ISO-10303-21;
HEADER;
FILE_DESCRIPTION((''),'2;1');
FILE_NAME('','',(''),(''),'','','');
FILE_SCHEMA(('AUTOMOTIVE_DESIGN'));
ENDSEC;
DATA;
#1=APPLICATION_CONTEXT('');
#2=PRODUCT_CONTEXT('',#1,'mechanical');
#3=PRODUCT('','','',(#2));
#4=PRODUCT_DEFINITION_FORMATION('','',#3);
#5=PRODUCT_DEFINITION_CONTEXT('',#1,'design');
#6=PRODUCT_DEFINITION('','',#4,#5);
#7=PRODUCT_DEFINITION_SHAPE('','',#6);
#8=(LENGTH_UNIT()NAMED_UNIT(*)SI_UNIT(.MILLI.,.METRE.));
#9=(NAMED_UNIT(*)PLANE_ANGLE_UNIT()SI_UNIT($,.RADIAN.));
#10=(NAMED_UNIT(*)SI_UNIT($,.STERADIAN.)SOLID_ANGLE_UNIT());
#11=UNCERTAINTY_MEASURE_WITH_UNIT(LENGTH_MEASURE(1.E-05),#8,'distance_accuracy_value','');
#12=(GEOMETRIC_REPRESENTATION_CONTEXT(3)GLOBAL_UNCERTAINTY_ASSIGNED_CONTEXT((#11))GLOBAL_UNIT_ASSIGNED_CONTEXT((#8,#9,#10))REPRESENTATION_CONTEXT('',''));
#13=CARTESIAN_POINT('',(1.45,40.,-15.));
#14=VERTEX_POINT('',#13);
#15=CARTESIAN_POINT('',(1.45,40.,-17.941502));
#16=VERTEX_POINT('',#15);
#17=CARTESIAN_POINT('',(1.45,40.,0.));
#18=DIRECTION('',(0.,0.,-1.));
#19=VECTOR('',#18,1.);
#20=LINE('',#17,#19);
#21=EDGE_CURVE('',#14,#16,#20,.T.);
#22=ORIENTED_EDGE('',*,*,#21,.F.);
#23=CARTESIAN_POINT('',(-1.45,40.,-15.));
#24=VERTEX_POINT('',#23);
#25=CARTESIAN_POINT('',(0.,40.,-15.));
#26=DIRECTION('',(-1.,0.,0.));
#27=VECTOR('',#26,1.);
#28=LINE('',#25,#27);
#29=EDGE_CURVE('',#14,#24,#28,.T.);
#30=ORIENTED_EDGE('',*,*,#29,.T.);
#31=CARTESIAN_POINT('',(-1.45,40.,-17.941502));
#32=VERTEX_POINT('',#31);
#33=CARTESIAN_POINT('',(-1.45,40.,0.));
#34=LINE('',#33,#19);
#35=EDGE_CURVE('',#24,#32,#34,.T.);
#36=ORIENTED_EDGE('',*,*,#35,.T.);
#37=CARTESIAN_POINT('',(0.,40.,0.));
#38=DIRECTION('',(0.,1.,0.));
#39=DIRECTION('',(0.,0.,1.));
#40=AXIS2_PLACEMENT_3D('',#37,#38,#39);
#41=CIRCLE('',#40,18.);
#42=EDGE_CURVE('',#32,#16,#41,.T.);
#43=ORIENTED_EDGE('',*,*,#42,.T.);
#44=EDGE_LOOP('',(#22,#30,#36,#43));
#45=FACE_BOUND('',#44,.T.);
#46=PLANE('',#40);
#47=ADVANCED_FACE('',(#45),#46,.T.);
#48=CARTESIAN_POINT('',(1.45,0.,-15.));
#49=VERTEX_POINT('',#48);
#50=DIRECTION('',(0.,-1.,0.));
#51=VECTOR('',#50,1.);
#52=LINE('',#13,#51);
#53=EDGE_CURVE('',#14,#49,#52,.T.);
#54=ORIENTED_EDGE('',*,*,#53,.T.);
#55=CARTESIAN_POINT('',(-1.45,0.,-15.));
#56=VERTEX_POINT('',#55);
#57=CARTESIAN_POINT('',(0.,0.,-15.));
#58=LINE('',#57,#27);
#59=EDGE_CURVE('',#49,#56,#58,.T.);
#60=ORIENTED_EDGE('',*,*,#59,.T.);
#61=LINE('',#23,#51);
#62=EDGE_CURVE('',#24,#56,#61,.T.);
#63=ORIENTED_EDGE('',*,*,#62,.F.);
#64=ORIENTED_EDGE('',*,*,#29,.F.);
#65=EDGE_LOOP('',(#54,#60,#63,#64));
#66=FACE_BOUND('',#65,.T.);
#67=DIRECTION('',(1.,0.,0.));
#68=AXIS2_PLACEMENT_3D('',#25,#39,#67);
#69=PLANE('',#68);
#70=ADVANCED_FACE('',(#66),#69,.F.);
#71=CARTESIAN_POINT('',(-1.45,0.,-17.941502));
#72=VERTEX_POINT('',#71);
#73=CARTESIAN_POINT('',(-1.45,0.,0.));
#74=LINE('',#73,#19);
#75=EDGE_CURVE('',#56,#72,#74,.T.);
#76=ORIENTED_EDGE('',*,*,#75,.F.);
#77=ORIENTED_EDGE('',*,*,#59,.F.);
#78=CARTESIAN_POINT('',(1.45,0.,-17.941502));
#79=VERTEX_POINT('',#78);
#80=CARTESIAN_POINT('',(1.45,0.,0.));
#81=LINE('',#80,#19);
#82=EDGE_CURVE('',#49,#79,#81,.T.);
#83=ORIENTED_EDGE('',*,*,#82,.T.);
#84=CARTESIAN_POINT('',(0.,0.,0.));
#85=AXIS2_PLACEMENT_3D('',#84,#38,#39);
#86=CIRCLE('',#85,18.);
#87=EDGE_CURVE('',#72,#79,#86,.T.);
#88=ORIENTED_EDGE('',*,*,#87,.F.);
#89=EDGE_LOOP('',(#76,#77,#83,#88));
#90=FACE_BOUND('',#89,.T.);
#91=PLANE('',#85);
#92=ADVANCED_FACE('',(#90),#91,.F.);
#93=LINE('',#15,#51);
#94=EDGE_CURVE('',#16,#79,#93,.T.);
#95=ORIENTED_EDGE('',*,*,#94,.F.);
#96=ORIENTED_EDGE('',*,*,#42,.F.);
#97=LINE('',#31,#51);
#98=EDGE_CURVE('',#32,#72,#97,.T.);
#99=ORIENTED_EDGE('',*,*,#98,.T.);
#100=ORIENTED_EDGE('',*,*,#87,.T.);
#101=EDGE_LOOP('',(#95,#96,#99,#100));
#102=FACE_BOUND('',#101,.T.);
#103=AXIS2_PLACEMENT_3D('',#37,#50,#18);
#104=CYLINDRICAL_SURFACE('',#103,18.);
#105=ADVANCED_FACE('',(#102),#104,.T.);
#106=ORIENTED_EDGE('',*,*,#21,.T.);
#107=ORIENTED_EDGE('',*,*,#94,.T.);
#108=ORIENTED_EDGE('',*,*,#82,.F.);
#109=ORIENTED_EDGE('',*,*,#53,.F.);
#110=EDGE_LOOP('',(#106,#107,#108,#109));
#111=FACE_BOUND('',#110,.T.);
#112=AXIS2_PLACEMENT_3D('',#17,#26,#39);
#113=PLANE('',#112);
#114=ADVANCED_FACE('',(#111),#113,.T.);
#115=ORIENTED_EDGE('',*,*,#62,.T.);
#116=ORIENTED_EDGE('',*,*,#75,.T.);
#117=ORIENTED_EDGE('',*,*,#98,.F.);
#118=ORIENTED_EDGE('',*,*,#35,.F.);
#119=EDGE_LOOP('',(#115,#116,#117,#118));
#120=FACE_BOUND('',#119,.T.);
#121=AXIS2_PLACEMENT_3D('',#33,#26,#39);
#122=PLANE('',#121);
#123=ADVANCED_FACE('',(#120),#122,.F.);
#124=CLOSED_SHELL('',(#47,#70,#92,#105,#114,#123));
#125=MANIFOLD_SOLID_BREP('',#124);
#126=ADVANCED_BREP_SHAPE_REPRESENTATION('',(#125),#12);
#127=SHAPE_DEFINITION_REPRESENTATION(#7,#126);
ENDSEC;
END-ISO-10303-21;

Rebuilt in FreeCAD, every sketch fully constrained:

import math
import FreeCAD as App
import Part
import Sketcher

V = App.Vector
Q = App.Units.Quantity

doc = App.newDocument("Part")
body = doc.addObject("PartDesign::Body", "Body")

sketch1 = body.newObject("Sketcher::SketchObject", "Sketch")
sketch1.AttachmentSupport = (doc.getObject("XZ_Plane"), [""])
sketch1.MapMode = "FlatFace"
sketch1.addGeometry([
    Part.LineSegment(V(1.4, -17.9, 0), V(1.4, -15, 0)),
    Part.LineSegment(V(1.4, -15, 0), V(-1.4, -15, 0)),
    Part.LineSegment(V(-1.4, -15, 0), V(-1.4, -17.9, 0)),
    Part.ArcOfCircle(Part.Circle(V(0, 0, 0), V(0, 0, 1), 18), math.radians(0), math.radians(265)),
    Part.ArcOfCircle(Part.Circle(V(0, 0, 0), V(0, 0, 1), 18), math.radians(-85), math.radians(0)),
], False)
sketch1.addConstraint([
    Sketcher.Constraint("Coincident", 0, 2, 1, 1),
    Sketcher.Constraint("Coincident", 1, 2, 2, 1),
    Sketcher.Constraint("Coincident", 2, 2, 3, 2),
    Sketcher.Constraint("Tangent", 3, 1, 4, 2),
    Sketcher.Constraint("Coincident", 4, 1, 0, 1),
    Sketcher.Constraint("Vertical", 0),
    Sketcher.Constraint("Horizontal", 1),
    Sketcher.Constraint("Vertical", 2),
    Sketcher.Constraint("Coincident", 3, 3, -1, 1),
    Sketcher.Constraint("Equal", 3, 4),
    Sketcher.Constraint("PointOnObject", 3, 1, -1),
    Sketcher.Constraint("Horizontal", 2, 2, 4, 1),
    Sketcher.Constraint("Radius", 3, Q("18 mm")),
    Sketcher.Constraint("DistanceX", 1, 2, 1, 1, Q("2.9 mm")),
    Sketcher.Constraint("DistanceY", 0, 2, -1, 1, Q("15 mm")),
])
pad1 = body.newObject("PartDesign::Pad", "Pad")
pad1.Profile = sketch1
pad1.Length = 40
pad1.Reversed = True

doc.recompute()
